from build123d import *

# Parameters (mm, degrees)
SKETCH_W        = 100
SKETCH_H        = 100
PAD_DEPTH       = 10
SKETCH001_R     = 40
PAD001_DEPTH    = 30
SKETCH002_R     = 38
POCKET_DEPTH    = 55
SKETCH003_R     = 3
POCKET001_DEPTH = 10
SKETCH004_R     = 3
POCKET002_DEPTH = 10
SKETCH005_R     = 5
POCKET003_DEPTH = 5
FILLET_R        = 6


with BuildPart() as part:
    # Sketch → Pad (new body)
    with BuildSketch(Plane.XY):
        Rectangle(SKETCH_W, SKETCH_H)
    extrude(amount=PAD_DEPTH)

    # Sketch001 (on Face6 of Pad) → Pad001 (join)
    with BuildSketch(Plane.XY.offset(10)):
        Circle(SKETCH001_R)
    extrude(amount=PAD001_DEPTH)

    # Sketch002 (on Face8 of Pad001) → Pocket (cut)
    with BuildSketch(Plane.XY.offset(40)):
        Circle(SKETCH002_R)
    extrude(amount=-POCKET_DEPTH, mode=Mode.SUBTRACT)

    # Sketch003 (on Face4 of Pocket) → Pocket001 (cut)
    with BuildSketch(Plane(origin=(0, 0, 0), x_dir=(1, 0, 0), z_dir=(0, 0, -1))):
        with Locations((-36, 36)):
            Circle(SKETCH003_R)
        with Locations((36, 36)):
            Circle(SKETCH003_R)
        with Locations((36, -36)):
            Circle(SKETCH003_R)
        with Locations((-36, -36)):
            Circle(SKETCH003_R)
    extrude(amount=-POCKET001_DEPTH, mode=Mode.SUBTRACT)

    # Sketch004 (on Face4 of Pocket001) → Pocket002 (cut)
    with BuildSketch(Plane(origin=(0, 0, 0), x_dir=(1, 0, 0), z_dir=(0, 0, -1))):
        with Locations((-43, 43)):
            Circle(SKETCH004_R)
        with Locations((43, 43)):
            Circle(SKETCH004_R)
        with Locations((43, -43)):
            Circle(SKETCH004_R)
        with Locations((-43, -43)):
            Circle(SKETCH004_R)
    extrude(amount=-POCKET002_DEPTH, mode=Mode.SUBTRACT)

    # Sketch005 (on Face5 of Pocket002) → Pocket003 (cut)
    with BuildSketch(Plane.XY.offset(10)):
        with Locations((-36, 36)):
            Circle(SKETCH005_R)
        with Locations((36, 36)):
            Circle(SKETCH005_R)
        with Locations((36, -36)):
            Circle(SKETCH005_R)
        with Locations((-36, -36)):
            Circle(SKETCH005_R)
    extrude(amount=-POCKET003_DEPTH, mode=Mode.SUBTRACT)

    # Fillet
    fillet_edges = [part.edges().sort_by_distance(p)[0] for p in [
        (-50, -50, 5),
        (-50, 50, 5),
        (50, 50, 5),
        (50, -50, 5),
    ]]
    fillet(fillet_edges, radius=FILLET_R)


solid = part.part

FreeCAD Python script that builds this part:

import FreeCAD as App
import Part
import Sketcher
Q = App.Units.Quantity


def edges_at(feature, points):
    """Names of the edges that pass closest to the given points."""
    edges = feature.Shape.Edges
    near = lambda p: min(range(len(edges)), key=lambda i: edges[i].distToShape(Part.Vertex(*p))[0])
    return sorted({f"Edge{near(p) + 1}" for p in points})

doc = App.newDocument("Part")
body = doc.addObject("PartDesign::Body", "Body")

# Sketch on XY plane
sketch1 = doc.addObject("Sketcher::SketchObject", "Sketch")
body.addObject(sketch1)
sketch1.AttachmentSupport = (doc.XY_Plane, [""])
sketch1.MapMode = "FlatFace"
sketch1.addGeometry(Part.LineSegment(App.Vector(-50, 50, 0), App.Vector(-50, -50, 0)), False)
sketch1.addGeometry(Part.LineSegment(App.Vector(-50, -50, 0), App.Vector(50, -50, 0)), False)
sketch1.addGeometry(Part.LineSegment(App.Vector(50, -50, 0), App.Vector(50, 50, 0)), False)
sketch1.addGeometry(Part.LineSegment(App.Vector(50, 50, 0), App.Vector(-50, 50, 0)), False)
sketch1.addConstraint(Sketcher.Constraint("Coincident", 0, 2, 1, 1))
sketch1.addConstraint(Sketcher.Constraint("Coincident", 1, 2, 2, 1))
sketch1.addConstraint(Sketcher.Constraint("Coincident", 2, 2, 3, 1))
sketch1.addConstraint(Sketcher.Constraint("Coincident", 3, 2, 0, 1))
sketch1.addConstraint(Sketcher.Constraint("Vertical", 0))
sketch1.addConstraint(Sketcher.Constraint("Horizontal", 1))
sketch1.addConstraint(Sketcher.Constraint("Vertical", 2))
sketch1.addConstraint(Sketcher.Constraint("Horizontal", 3))
sketch1.addConstraint(Sketcher.Constraint("Symmetric", 0, 2, 2, 2, -1, 1))
sketch1.addConstraint(Sketcher.Constraint("Equal", 3, 0))
sketch1.addConstraint(Sketcher.Constraint("DistanceX", 1, 1, 1, 2, Q("100 mm")))
pad1 = doc.addObject("PartDesign::Pad", "Pad")
body.addObject(pad1)
pad1.Profile = sketch1
pad1.Length = 10

# Sketch on XY plane
sketch2 = doc.addObject("Sketcher::SketchObject", "Sketch001")
body.addObject(sketch2)
sketch2.AttachmentSupport = (doc.XY_Plane, [""])
sketch2.MapMode = "FlatFace"
sketch2.AttachmentOffset = App.Placement(App.Vector(0, 0, 10), App.Rotation())
sketch2.addGeometry(Part.Circle(App.Vector(0, 0, 0), App.Vector(0, 0, 1), 40), False)
sketch2.addConstraint(Sketcher.Constraint("Coincident", 0, 3, -1, 1))
sketch2.addConstraint(Sketcher.Constraint("Diameter", 0, Q("80 mm")))
pad2 = doc.addObject("PartDesign::Pad", "Pad001")
body.addObject(pad2)
pad2.Profile = sketch2
pad2.Length = 30

# Sketch on XY plane
sketch3 = doc.addObject("Sketcher::SketchObject", "Sketch002")
body.addObject(sketch3)
sketch3.AttachmentSupport = (doc.XY_Plane, [""])
sketch3.MapMode = "FlatFace"
sketch3.AttachmentOffset = App.Placement(App.Vector(0, 0, 40), App.Rotation())
sketch3.addGeometry(Part.Circle(App.Vector(0, 0, 0), App.Vector(0, 0, 1), 38), False)
sketch3.addConstraint(Sketcher.Constraint("Coincident", 0, 3, -1, 1))
sketch3.addConstraint(Sketcher.Constraint("Diameter", 0, Q("76 mm")))
pocket1 = doc.addObject("PartDesign::Pocket", "Pocket")
body.addObject(pocket1)
pocket1.Profile = sketch3
pocket1.Length = 55

# Sketch on XY plane
sketch4 = doc.addObject("Sketcher::SketchObject", "Sketch003")
body.addObject(sketch4)
sketch4.AttachmentSupport = (doc.XY_Plane, [""])
sketch4.MapMode = "FlatFace"
sketch4.addGeometry(Part.Circle(App.Vector(-36, -36, 0), App.Vector(0, 0, 1), 3), False)
sketch4.addGeometry(Part.Circle(App.Vector(36, -36, 0), App.Vector(0, 0, 1), 3), False)
sketch4.addGeometry(Part.Circle(App.Vector(36, 36, 0), App.Vector(0, 0, 1), 3), False)
sketch4.addGeometry(Part.Circle(App.Vector(-36, 36, 0), App.Vector(0, 0, 1), 3), False)
sketch4.addConstraint(Sketcher.Constraint("Equal", 0, 1))
sketch4.addConstraint(Sketcher.Constraint("Equal", 1, 2))
sketch4.addConstraint(Sketcher.Constraint("Equal", 2, 3))
sketch4.addConstraint(Sketcher.Constraint("Symmetric", 0, 3, 2, 3, -1, 1))
sketch4.addConstraint(Sketcher.Constraint("Symmetric", 1, 3, 3, 3, -1, 1))
sketch4.addConstraint(Sketcher.Constraint("Symmetric", 0, 3, 1, 3, -2))
sketch4.addConstraint(Sketcher.Constraint("Diameter", 0, Q("6 mm")))
sketch4.addConstraint(Sketcher.Constraint("DistanceX", 0, 3, -1, 1, Q("36 mm")))
sketch4.addConstraint(Sketcher.Constraint("DistanceY", 0, 3, -1, 1, Q("36 mm")))
pocket2 = doc.addObject("PartDesign::Pocket", "Pocket001")
body.addObject(pocket2)
pocket2.Profile = sketch4
pocket2.Length = 10
pocket2.Reversed = True

# Sketch on XY plane
sketch5 = doc.addObject("Sketcher::SketchObject", "Sketch004")
body.addObject(sketch5)
sketch5.AttachmentSupport = (doc.XY_Plane, [""])
sketch5.MapMode = "FlatFace"
sketch5.addGeometry(Part.Circle(App.Vector(-43, -43, 0), App.Vector(0, 0, 1), 3), False)
sketch5.addGeometry(Part.Circle(App.Vector(43, -43, 0), App.Vector(0, 0, 1), 3), False)
sketch5.addGeometry(Part.Circle(App.Vector(43, 43, 0), App.Vector(0, 0, 1), 3), False)
sketch5.addGeometry(Part.Circle(App.Vector(-43, 43, 0), App.Vector(0, 0, 1), 3), False)
sketch5.addConstraint(Sketcher.Constraint("Equal", 0, 1))
sketch5.addConstraint(Sketcher.Constraint("Equal", 1, 2))
sketch5.addConstraint(Sketcher.Constraint("Equal", 2, 3))
sketch5.addConstraint(Sketcher.Constraint("Symmetric", 0, 3, 2, 3, -1, 1))
sketch5.addConstraint(Sketcher.Constraint("Symmetric", 1, 3, 3, 3, -1, 1))
sketch5.addConstraint(Sketcher.Constraint("Symmetric", 0, 3, 1, 3, -2))
sketch5.addConstraint(Sketcher.Constraint("Diameter", 0, Q("6 mm")))
sketch5.addConstraint(Sketcher.Constraint("DistanceX", 0, 3, -1, 1, Q("43 mm")))
sketch5.addConstraint(Sketcher.Constraint("DistanceY", 0, 3, -1, 1, Q("43 mm")))
pocket3 = doc.addObject("PartDesign::Pocket", "Pocket002")
body.addObject(pocket3)
pocket3.Profile = sketch5
pocket3.Length = 10
pocket3.Reversed = True

# Sketch on XY plane
sketch6 = doc.addObject("Sketcher::SketchObject", "Sketch005")
body.addObject(sketch6)
sketch6.AttachmentSupport = (doc.XY_Plane, [""])
sketch6.MapMode = "FlatFace"
sketch6.AttachmentOffset = App.Placement(App.Vector(0, 0, 10), App.Rotation())
sketch6.addGeometry(Part.Circle(App.Vector(-36, 36, 0), App.Vector(0, 0, 1), 5), False)
sketch6.addGeometry(Part.Circle(App.Vector(36, 36, 0), App.Vector(0, 0, 1), 5), False)
sketch6.addGeometry(Part.Circle(App.Vector(36, -36, 0), App.Vector(0, 0, 1), 5), False)
sketch6.addGeometry(Part.Circle(App.Vector(-36, -36, 0), App.Vector(0, 0, 1), 5), False)
sketch6.addConstraint(Sketcher.Constraint("Equal", 0, 1))
sketch6.addConstraint(Sketcher.Constraint("Equal", 1, 2))
sketch6.addConstraint(Sketcher.Constraint("Equal", 2, 3))
sketch6.addConstraint(Sketcher.Constraint("Symmetric", 0, 3, 2, 3, -1, 1))
sketch6.addConstraint(Sketcher.Constraint("Symmetric", 1, 3, 3, 3, -1, 1))
sketch6.addConstraint(Sketcher.Constraint("Symmetric", 0, 3, 1, 3, -2))
sketch6.addConstraint(Sketcher.Constraint("Diameter", 0, Q("10 mm")))
sketch6.addConstraint(Sketcher.Constraint("DistanceX", 0, 3, -1, 1, Q("36 mm")))
sketch6.addConstraint(Sketcher.Constraint("DistanceY", -1, 1, 0, 3, Q("36 mm")))
pocket4 = doc.addObject("PartDesign::Pocket", "Pocket003")
body.addObject(pocket4)
pocket4.Profile = sketch6
pocket4.Length = 5
doc.recompute()

fillet = doc.addObject("PartDesign::Fillet", "Fillet")
body.addObject(fillet)
fillet.Base = (pocket4, edges_at(pocket4, [
    (-50, -50, 5),
    (-50, 50, 5),
    (50, 50, 5),
    (50, -50, 5),
]))
fillet.Radius = 6

doc.recompute()
